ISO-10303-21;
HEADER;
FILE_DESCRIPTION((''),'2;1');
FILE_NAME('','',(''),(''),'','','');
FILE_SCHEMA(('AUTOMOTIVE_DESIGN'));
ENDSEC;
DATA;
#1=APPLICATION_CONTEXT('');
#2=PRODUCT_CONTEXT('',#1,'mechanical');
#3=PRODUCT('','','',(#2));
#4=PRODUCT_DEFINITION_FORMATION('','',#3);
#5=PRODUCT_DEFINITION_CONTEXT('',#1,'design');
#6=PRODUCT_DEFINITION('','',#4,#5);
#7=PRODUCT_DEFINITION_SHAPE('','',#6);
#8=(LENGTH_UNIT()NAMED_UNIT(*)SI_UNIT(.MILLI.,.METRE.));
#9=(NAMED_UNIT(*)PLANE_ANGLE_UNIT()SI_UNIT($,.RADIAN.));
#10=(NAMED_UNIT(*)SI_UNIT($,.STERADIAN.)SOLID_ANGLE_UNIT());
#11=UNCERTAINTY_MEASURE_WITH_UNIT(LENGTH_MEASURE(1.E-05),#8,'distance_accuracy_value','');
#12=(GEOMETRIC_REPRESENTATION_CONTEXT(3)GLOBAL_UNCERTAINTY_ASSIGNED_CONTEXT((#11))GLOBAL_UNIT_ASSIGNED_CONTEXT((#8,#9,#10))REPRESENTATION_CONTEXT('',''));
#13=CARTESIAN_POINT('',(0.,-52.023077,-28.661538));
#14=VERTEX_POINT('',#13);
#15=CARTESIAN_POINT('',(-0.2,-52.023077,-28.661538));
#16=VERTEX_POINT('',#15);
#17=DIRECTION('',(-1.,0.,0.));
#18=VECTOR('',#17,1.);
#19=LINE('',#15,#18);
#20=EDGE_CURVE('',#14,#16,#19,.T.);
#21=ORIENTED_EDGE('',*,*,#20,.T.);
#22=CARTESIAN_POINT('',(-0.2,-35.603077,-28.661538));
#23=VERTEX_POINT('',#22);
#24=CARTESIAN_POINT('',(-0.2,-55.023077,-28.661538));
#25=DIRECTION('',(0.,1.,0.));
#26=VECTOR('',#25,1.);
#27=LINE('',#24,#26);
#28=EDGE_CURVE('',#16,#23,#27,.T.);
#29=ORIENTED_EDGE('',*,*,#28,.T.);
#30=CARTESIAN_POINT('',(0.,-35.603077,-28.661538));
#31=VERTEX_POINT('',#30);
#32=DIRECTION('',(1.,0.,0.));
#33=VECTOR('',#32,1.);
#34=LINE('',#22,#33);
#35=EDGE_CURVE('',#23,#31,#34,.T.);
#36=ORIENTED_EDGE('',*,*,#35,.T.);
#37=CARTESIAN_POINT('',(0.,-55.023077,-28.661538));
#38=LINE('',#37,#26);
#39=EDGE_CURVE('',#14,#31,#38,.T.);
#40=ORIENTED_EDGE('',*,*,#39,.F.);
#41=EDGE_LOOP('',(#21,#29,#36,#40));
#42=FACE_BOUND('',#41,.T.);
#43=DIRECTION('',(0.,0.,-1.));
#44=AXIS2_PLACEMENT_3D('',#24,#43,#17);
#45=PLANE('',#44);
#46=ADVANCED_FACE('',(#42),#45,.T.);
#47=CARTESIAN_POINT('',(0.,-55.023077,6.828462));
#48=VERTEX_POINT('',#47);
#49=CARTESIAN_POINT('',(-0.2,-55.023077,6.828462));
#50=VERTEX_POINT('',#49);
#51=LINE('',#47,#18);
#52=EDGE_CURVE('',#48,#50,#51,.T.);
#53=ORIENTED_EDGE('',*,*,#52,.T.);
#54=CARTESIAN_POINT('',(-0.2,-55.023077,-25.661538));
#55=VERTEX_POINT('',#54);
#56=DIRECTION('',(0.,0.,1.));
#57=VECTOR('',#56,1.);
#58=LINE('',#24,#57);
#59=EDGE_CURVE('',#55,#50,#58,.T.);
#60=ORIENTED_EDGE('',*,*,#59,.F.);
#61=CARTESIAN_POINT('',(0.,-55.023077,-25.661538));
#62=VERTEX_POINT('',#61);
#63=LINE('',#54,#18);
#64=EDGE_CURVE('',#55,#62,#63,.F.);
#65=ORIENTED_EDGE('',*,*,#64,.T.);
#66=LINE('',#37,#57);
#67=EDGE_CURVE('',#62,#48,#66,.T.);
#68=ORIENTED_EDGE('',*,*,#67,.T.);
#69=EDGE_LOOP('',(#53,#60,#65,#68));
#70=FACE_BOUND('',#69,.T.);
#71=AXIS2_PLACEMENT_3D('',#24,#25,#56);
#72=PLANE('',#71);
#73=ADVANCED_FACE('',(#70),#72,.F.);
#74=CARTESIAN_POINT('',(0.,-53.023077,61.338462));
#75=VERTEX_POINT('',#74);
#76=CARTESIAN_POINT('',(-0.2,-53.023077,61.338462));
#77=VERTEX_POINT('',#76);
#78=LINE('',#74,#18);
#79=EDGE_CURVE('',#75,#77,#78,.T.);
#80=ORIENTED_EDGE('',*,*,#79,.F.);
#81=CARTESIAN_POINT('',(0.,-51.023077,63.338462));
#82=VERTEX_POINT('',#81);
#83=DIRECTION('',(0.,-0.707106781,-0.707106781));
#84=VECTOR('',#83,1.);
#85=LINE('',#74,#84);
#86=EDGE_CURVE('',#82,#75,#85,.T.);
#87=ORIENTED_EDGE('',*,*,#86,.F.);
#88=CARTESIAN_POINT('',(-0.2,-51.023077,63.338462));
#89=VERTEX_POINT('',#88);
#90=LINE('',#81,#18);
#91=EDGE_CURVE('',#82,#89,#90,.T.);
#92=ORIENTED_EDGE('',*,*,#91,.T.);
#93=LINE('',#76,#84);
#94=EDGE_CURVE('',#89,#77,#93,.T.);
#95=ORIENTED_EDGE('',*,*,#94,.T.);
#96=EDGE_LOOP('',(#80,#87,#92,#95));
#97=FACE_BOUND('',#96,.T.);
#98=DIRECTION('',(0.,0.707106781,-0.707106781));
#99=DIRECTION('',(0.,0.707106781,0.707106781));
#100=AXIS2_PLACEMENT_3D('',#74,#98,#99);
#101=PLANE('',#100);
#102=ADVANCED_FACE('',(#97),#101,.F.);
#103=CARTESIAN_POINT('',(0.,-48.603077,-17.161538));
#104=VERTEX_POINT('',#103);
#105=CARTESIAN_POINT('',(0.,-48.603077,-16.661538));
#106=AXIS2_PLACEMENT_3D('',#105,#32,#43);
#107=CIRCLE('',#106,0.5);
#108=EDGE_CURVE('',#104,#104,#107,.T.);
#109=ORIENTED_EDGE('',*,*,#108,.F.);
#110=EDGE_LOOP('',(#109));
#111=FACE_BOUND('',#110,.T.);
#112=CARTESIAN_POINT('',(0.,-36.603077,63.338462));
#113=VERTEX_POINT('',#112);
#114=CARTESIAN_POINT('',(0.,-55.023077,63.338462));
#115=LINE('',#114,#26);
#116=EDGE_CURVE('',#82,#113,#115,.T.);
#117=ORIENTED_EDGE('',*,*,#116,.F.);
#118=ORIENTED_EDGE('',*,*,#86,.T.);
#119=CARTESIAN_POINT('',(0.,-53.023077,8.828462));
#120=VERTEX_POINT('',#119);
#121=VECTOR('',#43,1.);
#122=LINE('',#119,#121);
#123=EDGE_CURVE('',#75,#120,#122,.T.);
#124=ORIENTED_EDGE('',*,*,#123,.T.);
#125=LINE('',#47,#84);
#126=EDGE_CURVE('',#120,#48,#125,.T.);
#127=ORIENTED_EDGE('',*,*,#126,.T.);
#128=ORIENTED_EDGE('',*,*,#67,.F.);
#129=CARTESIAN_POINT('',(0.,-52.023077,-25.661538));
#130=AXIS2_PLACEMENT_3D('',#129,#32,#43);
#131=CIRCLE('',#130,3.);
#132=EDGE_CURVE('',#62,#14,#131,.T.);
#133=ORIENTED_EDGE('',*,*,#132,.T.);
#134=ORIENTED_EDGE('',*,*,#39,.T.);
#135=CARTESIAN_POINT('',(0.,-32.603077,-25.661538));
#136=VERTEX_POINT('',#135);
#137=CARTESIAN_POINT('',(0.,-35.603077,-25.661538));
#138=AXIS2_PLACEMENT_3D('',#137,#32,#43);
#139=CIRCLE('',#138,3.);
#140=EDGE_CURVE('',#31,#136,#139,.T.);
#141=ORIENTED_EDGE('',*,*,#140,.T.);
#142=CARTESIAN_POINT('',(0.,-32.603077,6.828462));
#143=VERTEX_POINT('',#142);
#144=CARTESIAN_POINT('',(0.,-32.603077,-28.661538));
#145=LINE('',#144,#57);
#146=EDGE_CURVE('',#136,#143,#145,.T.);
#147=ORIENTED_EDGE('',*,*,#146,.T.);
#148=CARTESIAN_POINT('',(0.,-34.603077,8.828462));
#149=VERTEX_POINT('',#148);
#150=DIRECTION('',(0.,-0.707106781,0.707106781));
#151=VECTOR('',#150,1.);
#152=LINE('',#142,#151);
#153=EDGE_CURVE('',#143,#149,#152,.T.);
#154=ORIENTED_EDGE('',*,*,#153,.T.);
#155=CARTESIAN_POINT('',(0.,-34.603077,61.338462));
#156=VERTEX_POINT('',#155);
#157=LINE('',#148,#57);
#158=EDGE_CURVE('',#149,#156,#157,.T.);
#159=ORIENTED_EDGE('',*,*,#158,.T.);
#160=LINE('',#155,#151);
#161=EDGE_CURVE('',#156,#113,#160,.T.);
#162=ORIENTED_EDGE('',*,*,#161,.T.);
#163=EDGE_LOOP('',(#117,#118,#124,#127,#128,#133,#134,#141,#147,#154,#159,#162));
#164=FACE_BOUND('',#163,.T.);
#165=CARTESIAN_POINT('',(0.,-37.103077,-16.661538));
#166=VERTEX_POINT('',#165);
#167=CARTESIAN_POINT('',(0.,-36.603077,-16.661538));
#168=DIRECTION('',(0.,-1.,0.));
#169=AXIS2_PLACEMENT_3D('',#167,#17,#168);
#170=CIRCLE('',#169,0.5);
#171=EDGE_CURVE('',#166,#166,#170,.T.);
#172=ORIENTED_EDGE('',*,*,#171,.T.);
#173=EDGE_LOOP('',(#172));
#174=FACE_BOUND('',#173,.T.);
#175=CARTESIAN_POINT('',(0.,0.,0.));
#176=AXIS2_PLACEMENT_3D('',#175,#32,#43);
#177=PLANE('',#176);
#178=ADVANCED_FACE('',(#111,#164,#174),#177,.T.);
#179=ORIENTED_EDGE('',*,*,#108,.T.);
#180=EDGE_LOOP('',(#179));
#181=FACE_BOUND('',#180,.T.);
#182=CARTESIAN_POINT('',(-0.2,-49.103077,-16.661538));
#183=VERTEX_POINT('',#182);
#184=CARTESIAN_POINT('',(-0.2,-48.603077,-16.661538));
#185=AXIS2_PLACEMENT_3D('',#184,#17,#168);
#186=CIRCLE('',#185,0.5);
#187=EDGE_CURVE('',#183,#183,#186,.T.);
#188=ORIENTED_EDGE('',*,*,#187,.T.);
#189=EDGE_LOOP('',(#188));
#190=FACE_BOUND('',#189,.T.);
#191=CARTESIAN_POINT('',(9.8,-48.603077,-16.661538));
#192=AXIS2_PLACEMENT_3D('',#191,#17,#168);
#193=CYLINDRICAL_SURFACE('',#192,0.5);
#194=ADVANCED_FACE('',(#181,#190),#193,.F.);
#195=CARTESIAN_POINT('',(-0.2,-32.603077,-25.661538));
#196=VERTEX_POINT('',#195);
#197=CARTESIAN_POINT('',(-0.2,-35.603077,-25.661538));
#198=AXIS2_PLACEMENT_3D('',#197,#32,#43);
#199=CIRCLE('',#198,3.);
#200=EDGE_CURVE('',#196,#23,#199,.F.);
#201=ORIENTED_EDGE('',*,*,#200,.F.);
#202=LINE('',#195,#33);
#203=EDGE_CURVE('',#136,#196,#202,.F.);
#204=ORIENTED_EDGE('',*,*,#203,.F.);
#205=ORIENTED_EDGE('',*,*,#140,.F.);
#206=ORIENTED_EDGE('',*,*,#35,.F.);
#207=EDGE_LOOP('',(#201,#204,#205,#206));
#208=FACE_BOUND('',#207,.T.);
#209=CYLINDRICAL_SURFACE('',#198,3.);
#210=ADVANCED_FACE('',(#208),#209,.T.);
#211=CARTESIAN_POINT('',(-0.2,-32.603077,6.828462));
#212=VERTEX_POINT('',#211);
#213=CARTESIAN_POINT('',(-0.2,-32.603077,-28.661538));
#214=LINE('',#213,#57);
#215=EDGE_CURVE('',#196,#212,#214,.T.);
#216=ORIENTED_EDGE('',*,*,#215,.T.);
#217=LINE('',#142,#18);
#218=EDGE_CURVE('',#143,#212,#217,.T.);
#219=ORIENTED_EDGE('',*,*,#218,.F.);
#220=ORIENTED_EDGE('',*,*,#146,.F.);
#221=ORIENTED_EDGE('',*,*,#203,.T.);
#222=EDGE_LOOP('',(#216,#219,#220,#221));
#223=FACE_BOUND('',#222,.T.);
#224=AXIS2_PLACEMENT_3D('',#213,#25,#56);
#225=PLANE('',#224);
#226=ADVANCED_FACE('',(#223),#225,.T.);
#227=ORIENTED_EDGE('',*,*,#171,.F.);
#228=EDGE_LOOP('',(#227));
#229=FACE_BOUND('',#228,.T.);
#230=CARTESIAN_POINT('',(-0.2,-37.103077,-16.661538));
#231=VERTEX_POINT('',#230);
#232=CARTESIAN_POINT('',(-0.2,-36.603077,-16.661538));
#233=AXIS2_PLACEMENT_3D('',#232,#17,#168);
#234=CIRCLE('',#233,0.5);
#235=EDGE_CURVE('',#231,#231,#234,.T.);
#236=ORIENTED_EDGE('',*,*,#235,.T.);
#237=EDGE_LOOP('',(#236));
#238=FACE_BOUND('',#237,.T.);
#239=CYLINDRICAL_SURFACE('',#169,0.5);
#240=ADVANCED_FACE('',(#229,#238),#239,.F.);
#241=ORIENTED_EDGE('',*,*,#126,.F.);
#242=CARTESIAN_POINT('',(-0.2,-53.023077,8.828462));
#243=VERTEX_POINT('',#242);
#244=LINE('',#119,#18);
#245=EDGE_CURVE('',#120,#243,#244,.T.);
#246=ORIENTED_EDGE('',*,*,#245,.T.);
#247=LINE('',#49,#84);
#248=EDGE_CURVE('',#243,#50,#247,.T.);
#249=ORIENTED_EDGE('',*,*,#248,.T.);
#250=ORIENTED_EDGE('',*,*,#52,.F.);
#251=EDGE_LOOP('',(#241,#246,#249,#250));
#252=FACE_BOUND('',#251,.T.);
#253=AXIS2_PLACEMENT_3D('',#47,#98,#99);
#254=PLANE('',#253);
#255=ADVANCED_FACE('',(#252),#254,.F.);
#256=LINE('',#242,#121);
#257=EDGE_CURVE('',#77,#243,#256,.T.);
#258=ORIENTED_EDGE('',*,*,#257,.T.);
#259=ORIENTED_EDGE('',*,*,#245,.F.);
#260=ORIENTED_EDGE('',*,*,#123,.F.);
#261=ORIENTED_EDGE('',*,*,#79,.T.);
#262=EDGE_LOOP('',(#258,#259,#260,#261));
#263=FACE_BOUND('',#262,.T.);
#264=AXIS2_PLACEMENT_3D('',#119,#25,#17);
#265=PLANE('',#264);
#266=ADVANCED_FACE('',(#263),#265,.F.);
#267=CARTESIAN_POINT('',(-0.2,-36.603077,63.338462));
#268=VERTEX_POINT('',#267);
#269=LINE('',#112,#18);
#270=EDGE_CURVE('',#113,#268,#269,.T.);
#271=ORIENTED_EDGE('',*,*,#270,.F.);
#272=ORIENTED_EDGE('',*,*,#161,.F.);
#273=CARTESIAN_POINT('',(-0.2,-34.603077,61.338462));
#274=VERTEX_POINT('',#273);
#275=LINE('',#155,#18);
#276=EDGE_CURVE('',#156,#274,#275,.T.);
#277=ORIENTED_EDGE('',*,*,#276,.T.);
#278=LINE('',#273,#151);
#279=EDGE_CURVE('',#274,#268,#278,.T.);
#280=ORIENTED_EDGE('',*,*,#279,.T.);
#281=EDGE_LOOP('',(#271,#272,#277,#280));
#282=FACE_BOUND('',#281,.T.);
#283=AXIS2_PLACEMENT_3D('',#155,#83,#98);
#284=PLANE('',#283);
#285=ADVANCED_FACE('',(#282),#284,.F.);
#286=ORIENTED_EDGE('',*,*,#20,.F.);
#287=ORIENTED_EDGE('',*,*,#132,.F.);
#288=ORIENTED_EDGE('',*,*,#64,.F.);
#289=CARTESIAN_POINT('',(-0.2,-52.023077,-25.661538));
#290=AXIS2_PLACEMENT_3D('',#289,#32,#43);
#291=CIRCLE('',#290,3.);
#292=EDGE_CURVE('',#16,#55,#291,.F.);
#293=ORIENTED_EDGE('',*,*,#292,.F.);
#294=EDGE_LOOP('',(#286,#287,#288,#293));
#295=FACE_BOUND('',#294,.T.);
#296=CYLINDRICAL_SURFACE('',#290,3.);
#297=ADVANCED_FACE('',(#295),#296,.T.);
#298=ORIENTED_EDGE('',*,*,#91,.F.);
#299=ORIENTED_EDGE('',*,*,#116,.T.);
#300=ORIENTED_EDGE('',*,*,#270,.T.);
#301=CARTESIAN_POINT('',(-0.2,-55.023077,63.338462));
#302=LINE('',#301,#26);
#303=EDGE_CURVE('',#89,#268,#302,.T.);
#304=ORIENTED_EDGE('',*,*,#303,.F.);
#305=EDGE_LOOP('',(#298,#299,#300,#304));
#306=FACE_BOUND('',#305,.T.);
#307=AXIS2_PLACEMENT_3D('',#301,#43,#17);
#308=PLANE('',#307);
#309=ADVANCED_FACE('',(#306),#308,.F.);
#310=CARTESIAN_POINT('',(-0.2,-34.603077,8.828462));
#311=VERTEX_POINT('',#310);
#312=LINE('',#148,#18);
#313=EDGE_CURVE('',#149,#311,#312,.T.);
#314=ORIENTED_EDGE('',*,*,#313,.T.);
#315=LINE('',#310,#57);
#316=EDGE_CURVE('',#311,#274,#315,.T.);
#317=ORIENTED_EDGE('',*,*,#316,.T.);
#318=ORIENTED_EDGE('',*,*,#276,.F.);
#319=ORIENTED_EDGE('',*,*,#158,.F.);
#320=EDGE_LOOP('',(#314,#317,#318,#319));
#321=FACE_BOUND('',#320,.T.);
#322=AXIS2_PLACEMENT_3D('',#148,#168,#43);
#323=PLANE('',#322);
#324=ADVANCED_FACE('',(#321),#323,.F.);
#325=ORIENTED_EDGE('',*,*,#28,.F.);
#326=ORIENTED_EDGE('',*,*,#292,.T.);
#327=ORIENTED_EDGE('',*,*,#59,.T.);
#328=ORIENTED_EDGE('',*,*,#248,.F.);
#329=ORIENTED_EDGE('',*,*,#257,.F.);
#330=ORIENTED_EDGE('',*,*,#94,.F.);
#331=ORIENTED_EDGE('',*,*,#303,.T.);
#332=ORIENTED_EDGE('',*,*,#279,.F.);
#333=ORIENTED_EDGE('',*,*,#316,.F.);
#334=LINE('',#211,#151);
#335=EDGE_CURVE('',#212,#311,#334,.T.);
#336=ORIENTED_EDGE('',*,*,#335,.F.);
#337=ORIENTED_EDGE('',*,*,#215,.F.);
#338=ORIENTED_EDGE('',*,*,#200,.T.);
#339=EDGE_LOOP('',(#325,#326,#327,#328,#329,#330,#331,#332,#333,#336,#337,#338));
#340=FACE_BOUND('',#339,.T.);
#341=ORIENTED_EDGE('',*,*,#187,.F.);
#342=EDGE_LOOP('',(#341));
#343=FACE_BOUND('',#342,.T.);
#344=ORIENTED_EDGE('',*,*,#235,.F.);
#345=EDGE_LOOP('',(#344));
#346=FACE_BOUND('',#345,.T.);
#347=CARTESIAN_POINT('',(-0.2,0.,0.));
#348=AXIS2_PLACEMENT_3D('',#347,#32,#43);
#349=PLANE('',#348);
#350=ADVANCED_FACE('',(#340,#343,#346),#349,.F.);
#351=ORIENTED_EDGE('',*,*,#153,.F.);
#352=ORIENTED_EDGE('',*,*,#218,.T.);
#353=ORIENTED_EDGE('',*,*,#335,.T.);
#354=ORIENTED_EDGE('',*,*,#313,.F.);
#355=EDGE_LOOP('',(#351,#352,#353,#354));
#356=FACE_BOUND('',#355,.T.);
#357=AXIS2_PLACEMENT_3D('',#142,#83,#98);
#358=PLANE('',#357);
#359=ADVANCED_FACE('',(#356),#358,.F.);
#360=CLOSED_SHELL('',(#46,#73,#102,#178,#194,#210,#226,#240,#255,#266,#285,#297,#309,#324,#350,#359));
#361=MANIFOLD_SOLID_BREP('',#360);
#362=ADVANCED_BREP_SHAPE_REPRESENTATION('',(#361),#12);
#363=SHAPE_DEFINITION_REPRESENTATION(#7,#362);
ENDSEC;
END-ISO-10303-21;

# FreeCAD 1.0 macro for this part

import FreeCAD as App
import Part
import Sketcher
Q = App.Units.Quantity


def edges_at(feature, points):
    """Names of the edges that pass closest to the given points."""
    edges = feature.Shape.Edges
    near = lambda p: min(range(len(edges)), key=lambda i: edges[i].distToShape(Part.Vertex(*p))[0])
    return sorted({f"Edge{near(p) + 1}" for p in points})


def add_polygon(sketch, points):
    """Adds a closed chain of lines whose ends are joined by coincident constraints."""
    first, n = sketch.GeometryCount, len(points)
    for a, b in zip(points, points[1:] + points[:1]):
        sketch.addGeometry(Part.LineSegment(App.Vector(*a, 0), App.Vector(*b, 0)), False)
    for i in range(n):
        sketch.addConstraint(Sketcher.Constraint("Coincident", first + i, 2, first + (i + 1) % n, 1))

doc = App.newDocument("Part")
body = doc.addObject("PartDesign::Body", "Body")

# Sketch on YZ plane
sketch1 = body.newObject("Sketcher::SketchObject", "Sketch")
sketch1.AttachmentSupport = (doc.getObject("YZ_Plane"), [""])
sketch1.MapMode = "FlatFace"
add_polygon(sketch1, [(-55.023077, -28.661538), (-55.023077, 63.338462), (-32.603077, 63.338462), (-32.603077, -28.661538)])  # lines 0-3
sketch1.addConstraint([
    Sketcher.Constraint("Vertical", 0),
    Sketcher.Constraint("Horizontal", 1),
    Sketcher.Constraint("Vertical", 2),
    Sketcher.Constraint("Horizontal", 3),
    Sketcher.Constraint("DistanceY", 0, 1, 0, 2, Q("92 mm")),
    Sketcher.Constraint("DistanceX", 1, 1, 1, 2, Q("22.42 mm")),
    Sketcher.Constraint("DistanceY", -1, 1, 0, 2, Q("63.338462 mm")),
    Sketcher.Constraint("DistanceX", 0, 2, -1, 1, Q("55.023077 mm")),
])
pad1 = body.newObject("PartDesign::Pad", "Pad")
pad1.Profile = sketch1
pad1.Length = 0.2
pad1.Reversed = True
doc.recompute()

fillet = body.newObject("PartDesign::Fillet", "Fillet")
fillet.Base = (pad1, edges_at(pad1, [(-0.1, -55.023, -28.662)]))
fillet.Radius = 3
doc.recompute()

fillet2 = body.newObject("PartDesign::Fillet", "Fillet001")
fillet2.Base = (fillet, edges_at(fillet, [(-0.1, -32.603, -28.662)]))
fillet2.Radius = 3

# Sketch on YZ plane
sketch2 = body.newObject("Sketcher::SketchObject", "Sketch001")
sketch2.AttachmentSupport = (doc.getObject("YZ_Plane"), [""])
sketch2.MapMode = "FlatFace"
sketch2.AttachmentOffset = App.Placement(App.Vector(0, 0, -0.2), App.Rotation())
add_polygon(sketch2, [(-55.023077, 8.828462), (-55.023077, 63.338462), (-53.023077, 63.338462), (-53.023077, 8.828462)])  # lines 0-3
sketch2.addConstraint([
    Sketcher.Constraint("Vertical", 0),
    Sketcher.Constraint("Horizontal", 1),
    Sketcher.Constraint("Vertical", 2),
    Sketcher.Constraint("Horizontal", 3),
    Sketcher.Constraint("DistanceX", 1, 1, 1, 2, Q("2 mm")),
    Sketcher.Constraint("DistanceY", 0, 1, 0, 2, Q("54.51 mm")),
    Sketcher.Constraint("DistanceY", -1, 1, 0, 2, Q("63.338462 mm")),
    Sketcher.Constraint("DistanceX", 0, 2, -1, 1, Q("55.023077 mm")),
])
pocket1 = body.newObject("PartDesign::Pocket", "Pocket")
pocket1.Profile = sketch2
pocket1.Length = 0.2
pocket1.Reversed = True

# Sketch on YZ plane
sketch3 = body.newObject("Sketcher::SketchObject", "Sketch002")
sketch3.AttachmentSupport = (doc.getObject("YZ_Plane"), [""])
sketch3.MapMode = "FlatFace"
sketch3.AttachmentOffset = App.Placement(App.Vector(0, 0, -0.2), App.Rotation())
add_polygon(sketch3, [(-34.603077, 8.828462), (-34.603077, 63.338462), (-32.603077, 63.338462), (-32.603077, 8.828462)])  # lines 0-3
sketch3.addConstraint([
    Sketcher.Constraint("Vertical", 0),
    Sketcher.Constraint("Horizontal", 1),
    Sketcher.Constraint("Vertical", 2),
    Sketcher.Constraint("Horizontal", 3),
    Sketcher.Constraint("DistanceX", 1, 1, 1, 2, Q("2 mm")),
    Sketcher.Constraint("DistanceY", 0, 1, 0, 2, Q("54.51 mm")),
    Sketcher.Constraint("DistanceY", -1, 1, 0, 2, Q("63.338462 mm")),
    Sketcher.Constraint("DistanceX", 0, 2, -1, 1, Q("34.603077 mm")),
])
pocket2 = body.newObject("PartDesign::Pocket", "Pocket001")
pocket2.Profile = sketch3
pocket2.Length = 0.2
pocket2.Reversed = True

# Sketch on YZ plane
sketch4 = body.newObject("Sketcher::SketchObject", "Sketch003")
sketch4.AttachmentSupport = (doc.getObject("YZ_Plane"), [""])
sketch4.MapMode = "FlatFace"
sketch4.AttachmentOffset = App.Placement(App.Vector(0, 0, -0.2), App.Rotation())
add_polygon(sketch4, [(-53.023077, 61.338462), (-53.023077, 63.338462), (-51.023077, 63.338462)])  # lines 0-2
sketch4.addConstraint([
    Sketcher.Constraint("Vertical", 0),
    Sketcher.Constraint("Horizontal", 1),
    Sketcher.Constraint("Equal", 1, 0),
    Sketcher.Constraint("DistanceX", 1, 1, 1, 2, Q("2 mm")),
    Sketcher.Constraint("DistanceY", -1, 1, 0, 2, Q("63.338462 mm")),
    Sketcher.Constraint("DistanceX", 0, 2, -1, 1, Q("53.023077 mm")),
])
pocket3 = body.newObject("PartDesign::Pocket", "Pocket002")
pocket3.Profile = sketch4
pocket3.Length = 0.2
pocket3.Reversed = True

# Sketch on YZ plane
sketch5 = body.newObject("Sketcher::SketchObject", "Sketch004")
sketch5.AttachmentSupport = (doc.getObject("YZ_Plane"), [""])
sketch5.MapMode = "FlatFace"
sketch5.AttachmentOffset = App.Placement(App.Vector(0, 0, -0.2), App.Rotation())
add_polygon(sketch5, [(-34.603077, 63.338462), (-34.603077, 61.338462), (-36.603077, 63.338462)])  # lines 0-2
sketch5.addConstraint([
    Sketcher.Constraint("Vertical", 0),
    Sketcher.Constraint("Horizontal", 2),
    Sketcher.Constraint("Equal", 2, 0),
    Sketcher.Constraint("DistanceX", 2, 1, 2, 2, Q("2 mm")),
    Sketcher.Constraint("DistanceY", -1, 1, 0, 2, Q("61.338462 mm")),
    Sketcher.Constraint("DistanceX", 0, 2, -1, 1, Q("34.603077 mm")),
])
pocket4 = body.newObject("PartDesign::Pocket", "Pocket003")
pocket4.Profile = sketch5
pocket4.Length = 0.2
pocket4.Reversed = True

# Sketch on YZ plane
sketch6 = body.newObject("Sketcher::SketchObject", "Sketch005")
sketch6.AttachmentSupport = (doc.getObject("YZ_Plane"), [""])
sketch6.MapMode = "FlatFace"
sketch6.AttachmentOffset = App.Placement(App.Vector(0, 0, -0.2), App.Rotation())
add_polygon(sketch6, [(-55.023077, 8.828462), (-53.023077, 8.828462), (-55.023077, 6.828462)])  # lines 0-2
sketch6.addConstraint([
    Sketcher.Constraint("Horizontal", 0),
    Sketcher.Constraint("Vertical", 2),
    Sketcher.Constraint("Equal", 0, 2),
    Sketcher.Constraint("DistanceX", 0, 1, 0, 2, Q("2 mm")),
    Sketcher.Constraint("DistanceY", -1, 1, 0, 2, Q("8.828462 mm")),
    Sketcher.Constraint("DistanceX", 0, 2, -1, 1, Q("53.023077 mm")),
])
pocket5 = body.newObject("PartDesign::Pocket", "Pocket004")
pocket5.Profile = sketch6
pocket5.Length = 0.2
pocket5.Reversed = True

# Sketch on YZ plane
sketch7 = body.newObject("Sketcher::SketchObject", "Sketch006")
sketch7.AttachmentSupport = (doc.getObject("YZ_Plane"), [""])
sketch7.MapMode = "FlatFace"
sketch7.AttachmentOffset = App.Placement(App.Vector(0, 0, -0.2), App.Rotation())
add_polygon(sketch7, [(-34.603077, 8.828462), (-32.603077, 8.828462), (-32.603077, 6.828462)])  # lines 0-2
sketch7.addConstraint([
    Sketcher.Constraint("Horizontal", 0),
    Sketcher.Constraint("Vertical", 1),
    Sketcher.Constraint("Equal", 0, 1),
    Sketcher.Constraint("DistanceX", 0, 1, 0, 2, Q("2 mm")),
    Sketcher.Constraint("DistanceY", -1, 1, 0, 2, Q("8.828462 mm")),
    Sketcher.Constraint("DistanceX", 0, 2, -1, 1, Q("32.603077 mm")),
])
pocket6 = body.newObject("PartDesign::Pocket", "Pocket005")
pocket6.Profile = sketch7
pocket6.Length = 0.2
pocket6.Reversed = True

# Sketch on YZ plane
sketch8 = body.newObject("Sketcher::SketchObject", "Sketch007")
sketch8.AttachmentSupport = (doc.getObject("YZ_Plane"), [""])
sketch8.MapMode = "FlatFace"
sketch8.AttachmentOffset = App.Placement(App.Vector(0, 0, -0.2), App.Rotation())
sketch8.addGeometry(Part.Circle(App.Vector(-48.603077, -16.661538, 0), App.Vector(0, 0, 1), 0.5), False)
sketch8.addConstraint([
    Sketcher.Constraint("Diameter", 0, Q("1 mm")),
    Sketcher.Constraint("DistanceY", 0, 3, -1, 1, Q("16.661538 mm")),
    Sketcher.Constraint("DistanceX", 0, 3, -1, 1, Q("48.603077 mm")),
])
pocket7 = body.newObject("PartDesign::Pocket", "Pocket006")
pocket7.Profile = sketch8
pocket7.Length = 10
pocket7.Reversed = True

# Sketch on YZ plane
sketch9 = body.newObject("Sketcher::SketchObject", "Sketch008")
sketch9.AttachmentSupport = (doc.getObject("YZ_Plane"), [""])
sketch9.MapMode = "FlatFace"
sketch9.AttachmentOffset = App.Placement(App.Vector(0, 0, -0.2), App.Rotation())
sketch9.addGeometry(Part.Circle(App.Vector(-36.603077, -16.661538, 0), App.Vector(0, 0, 1), 0.5), False)
sketch9.addConstraint([
    Sketcher.Constraint("Diameter", 0, Q("1 mm")),
    Sketcher.Constraint("DistanceY", 0, 3, -1, 1, Q("16.661538 mm")),
    Sketcher.Constraint("DistanceX", 0, 3, -1, 1, Q("36.603077 mm")),
])
pocket8 = body.newObject("PartDesign::Pocket", "Pocket007")
pocket8.Profile = sketch9
pocket8.Length = 0.2
pocket8.Reversed = True

doc.recompute()
